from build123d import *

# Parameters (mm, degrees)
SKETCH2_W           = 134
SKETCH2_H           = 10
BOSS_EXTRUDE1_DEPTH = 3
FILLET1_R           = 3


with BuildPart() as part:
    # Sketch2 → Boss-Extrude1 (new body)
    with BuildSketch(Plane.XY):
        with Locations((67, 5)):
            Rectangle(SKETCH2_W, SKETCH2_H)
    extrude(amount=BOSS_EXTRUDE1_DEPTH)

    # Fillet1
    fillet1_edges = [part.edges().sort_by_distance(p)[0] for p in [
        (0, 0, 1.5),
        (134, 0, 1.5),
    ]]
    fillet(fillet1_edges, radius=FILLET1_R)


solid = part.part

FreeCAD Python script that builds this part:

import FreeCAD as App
import Part
import Sketcher
from FreeCAD import Vector
Q = App.Units.Quantity


def edges_at(feature, points):
    """Names of the edges that pass closest to the given points."""
    edges = feature.Shape.Edges
    near = lambda p: min(range(len(edges)), key=lambda i: edges[i].distToShape(Part.Vertex(*p))[0])
    return sorted({f"Edge{near(p) + 1}" for p in points})

doc = App.newDocument("Part")
params = doc.addObject("Spreadsheet::Sheet", "Params")
for row, (alias, value) in enumerate([
    ("sketch1_width", "134 mm"),
    ("sketch1_height", "10 mm"),
    ("pad1_length", "3 mm"),
    ("fillet_radius", "3 mm"),
], start=1):
    params.set(f"A{row}", alias)
    params.set(f"B{row}", "=" + value)
    params.setAlias(f"B{row}", alias)

body = doc.addObject("PartDesign::Body", "Body")

# Sketch on XY plane
sketch1 = doc.addObject("Sketcher::SketchObject", "Sketch")
body.addObject(sketch1)
sketch1.AttachmentSupport = (doc.XY_Plane, [""])
sketch1.MapMode = "FlatFace"
sketch1.addGeometry(Part.LineSegment(Vector(0, 10, 0), Vector(0, 0, 0)), False)
sketch1.addGeometry(Part.LineSegment(Vector(0, 0, 0), Vector(134, 0, 0)), False)
sketch1.addGeometry(Part.LineSegment(Vector(134, 0, 0), Vector(134, 10, 0)), False)
sketch1.addGeometry(Part.LineSegment(Vector(134, 10, 0), Vector(0, 10, 0)), False)
sketch1.addConstraint(Sketcher.Constraint("Coincident", 0, 2, 1, 1))
sketch1.addConstraint(Sketcher.Constraint("Coincident", 1, 2, 2, 1))
sketch1.addConstraint(Sketcher.Constraint("Coincident", 2, 2, 3, 1))
sketch1.addConstraint(Sketcher.Constraint("Coincident", 3, 2, 0, 1))
sketch1.addConstraint(Sketcher.Constraint("Vertical", 0))
sketch1.addConstraint(Sketcher.Constraint("Horizontal", 1))
sketch1.addConstraint(Sketcher.Constraint("Vertical", 2))
sketch1.addConstraint(Sketcher.Constraint("Horizontal", 3))
sketch1.addConstraint(Sketcher.Constraint("Coincident", 0, 2, -1, 1))
sketch1.addConstraint(Sketcher.Constraint("DistanceX", 1, 1, 1, 2, Q("134 mm")))
sketch1.addConstraint(Sketcher.Constraint("DistanceY", 0, 2, 0, 1, Q("10 mm")))
sketch1.setExpression("Constraints[9]", "Params.sketch1_width")
sketch1.setExpression("Constraints[10]", "Params.sketch1_height")
pad1 = doc.addObject("PartDesign::Pad", "Pad")
body.addObject(pad1)
pad1.Profile = sketch1
pad1.setExpression("Length", "Params.pad1_length")
doc.recompute()

fillet = doc.addObject("PartDesign::Fillet", "Fillet")
body.addObject(fillet)
fillet.Base = (pad1, edges_at(pad1, [(0, 0, 1.5), (134, 0, 1.5)]))
fillet.setExpression("Radius", "Params.fillet_radius")

doc.recompute()
